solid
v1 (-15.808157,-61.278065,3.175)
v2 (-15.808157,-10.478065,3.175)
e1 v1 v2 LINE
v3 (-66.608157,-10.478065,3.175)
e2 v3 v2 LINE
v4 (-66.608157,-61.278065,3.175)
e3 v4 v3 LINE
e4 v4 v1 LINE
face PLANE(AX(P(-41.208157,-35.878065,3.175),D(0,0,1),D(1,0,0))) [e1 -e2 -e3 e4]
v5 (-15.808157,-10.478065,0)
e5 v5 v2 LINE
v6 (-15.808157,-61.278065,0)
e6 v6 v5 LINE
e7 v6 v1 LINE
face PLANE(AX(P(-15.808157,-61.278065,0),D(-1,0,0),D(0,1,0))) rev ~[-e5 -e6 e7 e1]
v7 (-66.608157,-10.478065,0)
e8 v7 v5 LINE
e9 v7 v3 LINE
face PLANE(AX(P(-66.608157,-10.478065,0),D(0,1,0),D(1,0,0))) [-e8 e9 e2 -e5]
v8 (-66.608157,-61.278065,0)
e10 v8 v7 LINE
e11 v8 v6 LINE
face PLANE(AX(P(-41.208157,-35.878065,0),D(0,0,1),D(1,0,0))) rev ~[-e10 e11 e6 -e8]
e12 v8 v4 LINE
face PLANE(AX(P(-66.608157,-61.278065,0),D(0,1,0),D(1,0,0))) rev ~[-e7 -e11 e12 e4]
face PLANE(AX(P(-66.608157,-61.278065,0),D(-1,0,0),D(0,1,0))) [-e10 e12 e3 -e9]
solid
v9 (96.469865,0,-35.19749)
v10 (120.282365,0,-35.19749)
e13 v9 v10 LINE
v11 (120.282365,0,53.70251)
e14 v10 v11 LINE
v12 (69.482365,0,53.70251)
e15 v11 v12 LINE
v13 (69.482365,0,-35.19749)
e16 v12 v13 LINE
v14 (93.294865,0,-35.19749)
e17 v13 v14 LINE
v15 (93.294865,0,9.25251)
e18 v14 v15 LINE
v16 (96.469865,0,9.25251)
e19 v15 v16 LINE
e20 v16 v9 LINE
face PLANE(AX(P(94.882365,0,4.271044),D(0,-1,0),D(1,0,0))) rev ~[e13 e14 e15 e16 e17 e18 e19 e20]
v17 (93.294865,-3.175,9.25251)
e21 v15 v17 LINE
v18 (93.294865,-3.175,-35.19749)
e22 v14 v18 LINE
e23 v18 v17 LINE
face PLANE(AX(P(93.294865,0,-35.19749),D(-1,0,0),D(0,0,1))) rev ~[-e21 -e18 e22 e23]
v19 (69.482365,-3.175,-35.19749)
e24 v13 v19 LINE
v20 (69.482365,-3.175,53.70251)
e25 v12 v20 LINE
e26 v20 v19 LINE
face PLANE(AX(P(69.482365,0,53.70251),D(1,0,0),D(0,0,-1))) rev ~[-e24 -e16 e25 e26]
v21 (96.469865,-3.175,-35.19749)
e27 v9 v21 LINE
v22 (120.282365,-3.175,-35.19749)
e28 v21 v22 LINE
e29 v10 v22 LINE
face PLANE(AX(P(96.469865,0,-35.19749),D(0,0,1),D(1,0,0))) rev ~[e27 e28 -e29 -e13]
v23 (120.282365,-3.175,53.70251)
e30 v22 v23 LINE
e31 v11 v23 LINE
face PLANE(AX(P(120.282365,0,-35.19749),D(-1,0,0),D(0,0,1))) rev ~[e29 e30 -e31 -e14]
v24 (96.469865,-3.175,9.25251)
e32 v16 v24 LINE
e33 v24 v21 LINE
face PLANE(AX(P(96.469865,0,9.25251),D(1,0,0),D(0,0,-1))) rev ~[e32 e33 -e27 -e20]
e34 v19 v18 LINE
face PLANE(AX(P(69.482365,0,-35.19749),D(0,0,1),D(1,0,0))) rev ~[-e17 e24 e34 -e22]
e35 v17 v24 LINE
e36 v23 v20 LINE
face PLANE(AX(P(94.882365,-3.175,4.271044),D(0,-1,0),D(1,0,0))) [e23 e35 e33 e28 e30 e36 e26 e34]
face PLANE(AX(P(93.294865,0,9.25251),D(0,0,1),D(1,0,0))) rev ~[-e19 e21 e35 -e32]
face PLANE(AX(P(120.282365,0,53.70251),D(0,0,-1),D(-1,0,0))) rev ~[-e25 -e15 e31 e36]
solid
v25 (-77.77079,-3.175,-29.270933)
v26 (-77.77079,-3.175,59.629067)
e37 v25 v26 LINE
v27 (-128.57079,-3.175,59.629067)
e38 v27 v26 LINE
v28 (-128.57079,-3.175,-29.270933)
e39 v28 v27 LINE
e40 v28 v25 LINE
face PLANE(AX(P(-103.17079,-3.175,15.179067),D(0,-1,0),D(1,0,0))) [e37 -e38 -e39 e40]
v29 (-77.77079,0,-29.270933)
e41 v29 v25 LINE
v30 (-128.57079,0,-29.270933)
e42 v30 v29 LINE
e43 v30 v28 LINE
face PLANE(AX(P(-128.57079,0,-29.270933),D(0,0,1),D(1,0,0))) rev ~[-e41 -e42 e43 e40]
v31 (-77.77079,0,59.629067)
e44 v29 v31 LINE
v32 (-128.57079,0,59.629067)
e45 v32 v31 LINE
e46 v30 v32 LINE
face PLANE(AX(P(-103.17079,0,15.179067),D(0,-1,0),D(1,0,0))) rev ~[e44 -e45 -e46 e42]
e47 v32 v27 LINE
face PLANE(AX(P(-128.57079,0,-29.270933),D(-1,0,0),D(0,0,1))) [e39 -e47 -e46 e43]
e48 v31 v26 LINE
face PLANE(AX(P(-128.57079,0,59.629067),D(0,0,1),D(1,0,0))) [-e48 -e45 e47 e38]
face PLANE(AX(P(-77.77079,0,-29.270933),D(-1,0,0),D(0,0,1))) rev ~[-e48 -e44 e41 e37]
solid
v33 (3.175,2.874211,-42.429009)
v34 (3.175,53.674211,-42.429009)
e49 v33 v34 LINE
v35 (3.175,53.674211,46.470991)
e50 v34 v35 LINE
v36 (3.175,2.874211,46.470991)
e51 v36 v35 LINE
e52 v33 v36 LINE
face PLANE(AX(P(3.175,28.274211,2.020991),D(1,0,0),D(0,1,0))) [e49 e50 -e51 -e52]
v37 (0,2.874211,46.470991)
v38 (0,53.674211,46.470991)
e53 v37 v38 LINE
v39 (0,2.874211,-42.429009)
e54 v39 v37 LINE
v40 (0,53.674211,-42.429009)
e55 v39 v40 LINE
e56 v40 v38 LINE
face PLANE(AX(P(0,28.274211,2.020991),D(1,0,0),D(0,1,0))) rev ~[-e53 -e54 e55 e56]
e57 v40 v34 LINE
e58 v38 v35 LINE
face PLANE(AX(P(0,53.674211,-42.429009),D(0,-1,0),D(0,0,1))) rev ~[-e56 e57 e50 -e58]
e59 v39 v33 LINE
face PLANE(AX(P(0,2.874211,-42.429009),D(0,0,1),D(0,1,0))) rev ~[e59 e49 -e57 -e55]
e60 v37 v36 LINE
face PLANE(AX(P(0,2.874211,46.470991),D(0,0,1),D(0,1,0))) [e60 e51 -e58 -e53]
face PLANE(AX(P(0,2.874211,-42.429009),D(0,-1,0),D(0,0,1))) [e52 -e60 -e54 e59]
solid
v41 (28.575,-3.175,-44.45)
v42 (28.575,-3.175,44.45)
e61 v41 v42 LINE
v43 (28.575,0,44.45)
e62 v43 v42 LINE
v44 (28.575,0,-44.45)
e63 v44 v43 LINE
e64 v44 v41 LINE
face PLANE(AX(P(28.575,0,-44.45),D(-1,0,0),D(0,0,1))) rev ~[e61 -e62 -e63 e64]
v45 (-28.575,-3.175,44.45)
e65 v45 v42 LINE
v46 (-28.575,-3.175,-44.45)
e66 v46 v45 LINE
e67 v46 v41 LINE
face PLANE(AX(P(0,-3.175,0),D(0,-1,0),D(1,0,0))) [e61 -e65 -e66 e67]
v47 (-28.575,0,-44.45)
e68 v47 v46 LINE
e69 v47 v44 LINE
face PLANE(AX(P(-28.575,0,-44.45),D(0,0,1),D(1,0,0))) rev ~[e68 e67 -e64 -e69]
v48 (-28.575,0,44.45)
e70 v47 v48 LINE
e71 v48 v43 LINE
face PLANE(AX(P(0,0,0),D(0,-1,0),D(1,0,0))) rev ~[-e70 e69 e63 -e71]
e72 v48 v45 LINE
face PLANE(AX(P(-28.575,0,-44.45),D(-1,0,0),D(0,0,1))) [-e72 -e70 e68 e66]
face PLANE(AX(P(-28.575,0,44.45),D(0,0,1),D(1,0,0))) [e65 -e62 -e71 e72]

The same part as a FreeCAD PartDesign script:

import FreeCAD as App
import Part
import Sketcher

V = App.Vector
Q = App.Units.Quantity


def add_polygon(sketch, points):
    """Adds a closed chain of lines whose ends are joined by coincident constraints."""
    first, n = sketch.GeometryCount, len(points)
    for a, b in zip(points, points[1:] + points[:1]):
        sketch.addGeometry(Part.LineSegment(App.Vector(*a, 0), App.Vector(*b, 0)), False)
    for i in range(n):
        sketch.addConstraint(Sketcher.Constraint("Coincident", first + i, 2, first + (i + 1) % n, 1))

doc = App.newDocument("Part")
params = doc.addObject("Spreadsheet::Sheet", "Params")
for row, (alias, value) in enumerate([
    ("sketch1_height", "3.5 in"),
    ("sketch1_width", "2.25 in"),
    ("pad1_length", "0.125 in"),
    ("sketch2_width", "2 in"),
    ("sketch2_height", "3.5 in"),
    ("pad2_length", "0.125 in"),
    ("sketch3_width", "2 in"),
    ("pad3_length", "0.125 in"),
    ("sketch4_width", "2 in"),
    ("sketch4_height", "3.5 in"),
    ("pad4_length", "0.125 in"),
    ("sketch5_width", "2 in"),
    ("sketch5_height", "3.5 in"),
    ("sketch5_height2", "1.75 in"),
    ("sketch5_width2", "0.9375 in"),
    ("pad5_length", "0.125 in"),
], start=1):
    params.set(f"A{row}", alias)
    params.set(f"B{row}", "=" + value)
    params.setAlias(f"B{row}", alias)

body = doc.addObject("PartDesign::Body", "Body")

# Sketch on XZ plane
sketch1 = doc.addObject("Sketcher::SketchObject", "Sketch")
body.addObject(sketch1)
sketch1.AttachmentSupport = (doc.XZ_Plane, [""])
sketch1.MapMode = "FlatFace"
add_polygon(sketch1, [(-29, 44), (-29, -44), (29, -44), (29, 44)])  # lines 0-3
sketch1.addConstraint(Sketcher.Constraint("Vertical", 0))
sketch1.addConstraint(Sketcher.Constraint("Horizontal", 1))
sketch1.addConstraint(Sketcher.Constraint("Vertical", 2))
sketch1.addConstraint(Sketcher.Constraint("Horizontal", 3))
sketch1.addConstraint(Sketcher.Constraint("Symmetric", 0, 2, 2, 2, -1, 1))
sketch1.addConstraint(Sketcher.Constraint("DistanceY", 0, 2, 0, 1, Q("3.5 in")))
sketch1.addConstraint(Sketcher.Constraint("DistanceX", 1, 1, 1, 2, Q("2.25 in")))
sketch1.setExpression("Constraints[9]", "Params.sketch1_height")
sketch1.setExpression("Constraints[10]", "Params.sketch1_width")
pad1 = doc.addObject("PartDesign::Pad", "Pad")
body.addObject(pad1)
pad1.Profile = sketch1
pad1.setExpression("Length", "Params.pad1_length")
body2 = doc.addObject("PartDesign::Body", "Body001")
doc.recompute()

body2.BaseFeature = body
doc.recompute()
body3 = doc.addObject("PartDesign::Body", "Body002")

# Sketch on YZ plane
sketch2 = doc.addObject("Sketcher::SketchObject", "Sketch001")
body3.addObject(sketch2)
sketch2.AttachmentSupport = (doc.getObject("YZ_Plane002"), [""])
sketch2.MapMode = "FlatFace"
add_polygon(sketch2, [(3, 46), (3, -42), (54, -42), (54, 46)])  # lines 0-3
sketch2.addConstraint(Sketcher.Constraint("Vertical", 0))
sketch2.addConstraint(Sketcher.Constraint("Horizontal", 1))
sketch2.addConstraint(Sketcher.Constraint("Vertical", 2))
sketch2.addConstraint(Sketcher.Constraint("Horizontal", 3))
sketch2.addConstraint(Sketcher.Constraint("DistanceX", 1, 1, 1, 2, Q("2 in")))
sketch2.addConstraint(Sketcher.Constraint("DistanceY", 0, 2, 0, 1, Q("3.5 in")))
sketch2.addConstraint(Sketcher.Constraint("DistanceX", -1, 1, 0, 2, 2.874211))
sketch2.addConstraint(Sketcher.Constraint("DistanceY", 0, 2, -1, 1, 42.429009))
sketch2.setExpression("Constraints[8]", "Params.sketch2_width")
sketch2.setExpression("Constraints[9]", "Params.sketch2_height")
pad2 = doc.addObject("PartDesign::Pad", "Pad001")
body3.addObject(pad2)
pad2.Profile = sketch2
pad2.setExpression("Length", "Params.pad2_length")
body4 = doc.addObject("PartDesign::Body", "Body003")

# Sketch on XY plane
sketch3 = doc.addObject("Sketcher::SketchObject", "Sketch002")
body4.addObject(sketch3)
sketch3.AttachmentSupport = (doc.getObject("XY_Plane003"), [""])
sketch3.MapMode = "FlatFace"
add_polygon(sketch3, [(-67, -10), (-67, -61), (-16, -61), (-16, -10)])  # lines 0-3
sketch3.addConstraint(Sketcher.Constraint("Vertical", 0))
sketch3.addConstraint(Sketcher.Constraint("Horizontal", 1))
sketch3.addConstraint(Sketcher.Constraint("Vertical", 2))
sketch3.addConstraint(Sketcher.Constraint("Horizontal", 3))
sketch3.addConstraint(Sketcher.Constraint("Equal", 3, 0))
sketch3.addConstraint(Sketcher.Constraint("DistanceX", 1, 1, 1, 2, Q("2 in")))
sketch3.addConstraint(Sketcher.Constraint("DistanceX", 0, 2, -1, 1, 66.608157))
sketch3.addConstraint(Sketcher.Constraint("DistanceY", 0, 2, -1, 1, 61.278065))
sketch3.setExpression("Constraints[9]", "Params.sketch3_width")
pad3 = doc.addObject("PartDesign::Pad", "Pad002")
body4.addObject(pad3)
pad3.Profile = sketch3
pad3.setExpression("Length", "Params.pad3_length")
body5 = doc.addObject("PartDesign::Body", "Body004")

# Sketch on XZ plane
sketch4 = doc.addObject("Sketcher::SketchObject", "Sketch003")
body5.addObject(sketch4)
sketch4.AttachmentSupport = (doc.getObject("XZ_Plane004"), [""])
sketch4.MapMode = "FlatFace"
add_polygon(sketch4, [(-129, 60), (-129, -29), (-78, -29), (-78, 60)])  # lines 0-3
sketch4.addConstraint(Sketcher.Constraint("Vertical", 0))
sketch4.addConstraint(Sketcher.Constraint("Horizontal", 1))
sketch4.addConstraint(Sketcher.Constraint("Vertical", 2))
sketch4.addConstraint(Sketcher.Constraint("Horizontal", 3))
sketch4.addConstraint(Sketcher.Constraint("DistanceX", 1, 1, 1, 2, Q("2 in")))
sketch4.addConstraint(Sketcher.Constraint("DistanceY", 0, 2, 0, 1, Q("3.5 in")))
sketch4.addConstraint(Sketcher.Constraint("DistanceX", 0, 2, -1, 1, 128.57079))
sketch4.addConstraint(Sketcher.Constraint("DistanceY", 0, 2, -1, 1, 29.270933))
sketch4.setExpression("Constraints[8]", "Params.sketch4_width")
sketch4.setExpression("Constraints[9]", "Params.sketch4_height")
pad4 = doc.addObject("PartDesign::Pad", "Pad003")
body5.addObject(pad4)
pad4.Profile = sketch4
pad4.setExpression("Length", "Params.pad4_length")
body6 = doc.addObject("PartDesign::Body", "Body005")

# Sketch on XZ plane
sketch5 = doc.addObject("Sketcher::SketchObject", "Sketch004")
body6.addObject(sketch5)
sketch5.AttachmentSupport = (doc.getObject("XZ_Plane005"), [""])
sketch5.MapMode = "FlatFace"
add_polygon(sketch5, [(120.3, 53.7), (69.5, 53.7), (69.5, -35.2), (93.3, -35.2), (93.3, 9.3), (96.5, 9.3), (96.5, -35.2), (120.3, -35.2)])  # lines 0-7
sketch5.addConstraint(Sketcher.Constraint("Horizontal", 0))
sketch5.addConstraint(Sketcher.Constraint("Vertical", 1))
sketch5.addConstraint(Sketcher.Constraint("Horizontal", 2))
sketch5.addConstraint(Sketcher.Constraint("Vertical", 3))
sketch5.addConstraint(Sketcher.Constraint("Horizontal", 4))
sketch5.addConstraint(Sketcher.Constraint("Vertical", 5))
sketch5.addConstraint(Sketcher.Constraint("Horizontal", 6))
sketch5.addConstraint(Sketcher.Constraint("Vertical", 7))
sketch5.addConstraint(Sketcher.Constraint("Horizontal", 2, 2, 5, 2))
sketch5.addConstraint(Sketcher.Constraint("Equal", 2, 6))
sketch5.addConstraint(Sketcher.Constraint("DistanceX", 0, 2, 0, 1, Q("2 in")))
sketch5.addConstraint(Sketcher.Constraint("DistanceY", 1, 2, 1, 1, Q("3.5 in")))
sketch5.addConstraint(Sketcher.Constraint("DistanceY", 3, 1, 3, 2, Q("1.75 in")))
sketch5.addConstraint(Sketcher.Constraint("DistanceX", 2, 1, 2, 2, Q("0.9375 in")))
sketch5.addConstraint(Sketcher.Constraint("DistanceY", -1, 1, 0, 2, 53.70251))
sketch5.addConstraint(Sketcher.Constraint("DistanceX", -1, 1, 0, 2, 69.482365))
sketch5.setExpression("Constraints[18]", "Params.sketch5_width")
sketch5.setExpression("Constraints[19]", "Params.sketch5_height")
sketch5.setExpression("Constraints[20]", "Params.sketch5_height2")
sketch5.setExpression("Constraints[21]", "Params.sketch5_width2")
pad5 = doc.addObject("PartDesign::Pad", "Pad004")
body6.addObject(pad5)
pad5.Profile = sketch5
pad5.setExpression("Length", "Params.pad5_length")
body.Visibility = False

doc.recompute()
